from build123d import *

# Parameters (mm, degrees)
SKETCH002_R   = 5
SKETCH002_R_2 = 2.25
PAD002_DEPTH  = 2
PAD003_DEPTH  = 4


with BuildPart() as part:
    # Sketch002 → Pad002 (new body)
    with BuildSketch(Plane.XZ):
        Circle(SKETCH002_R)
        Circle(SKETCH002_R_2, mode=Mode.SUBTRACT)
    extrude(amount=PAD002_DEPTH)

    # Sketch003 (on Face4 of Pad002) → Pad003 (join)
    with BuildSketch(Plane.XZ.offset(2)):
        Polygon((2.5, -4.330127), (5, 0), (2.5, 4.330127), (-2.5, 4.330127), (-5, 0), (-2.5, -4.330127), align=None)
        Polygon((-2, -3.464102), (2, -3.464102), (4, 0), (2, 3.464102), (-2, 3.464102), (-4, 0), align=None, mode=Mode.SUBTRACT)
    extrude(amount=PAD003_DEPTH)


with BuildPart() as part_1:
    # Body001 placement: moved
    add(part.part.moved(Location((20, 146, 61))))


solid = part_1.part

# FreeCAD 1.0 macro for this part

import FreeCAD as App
import Part
import Sketcher
from FreeCAD import Vector
Q = App.Units.Quantity

doc = App.newDocument("Part")
body = doc.addObject("PartDesign::Body", "Body")

# Sketch on XZ plane
sketch1 = body.newObject("Sketcher::SketchObject", "Sketch")
sketch1.AttachmentSupport = (doc.getObject("XZ_Plane"), [""])
sketch1.MapMode = "FlatFace"
sketch1.addGeometry(Part.Circle(Vector(0, 0, 0), Vector(0, 0, 1), 5), False)
sketch1.addGeometry(Part.Circle(Vector(0, 0, 0), Vector(0, 0, 1), 2.2), False)
sketch1.addConstraint(Sketcher.Constraint("Coincident", 0, 3, -1, 1))
sketch1.addConstraint(Sketcher.Constraint("Coincident", 1, 3, -1, 1))
sketch1.addConstraint(Sketcher.Constraint("Diameter", 0, Q("10 mm")))
sketch1.addConstraint(Sketcher.Constraint("Diameter", 1, Q("4.5 mm")))
pad1 = body.newObject("PartDesign::Pad", "Pad")
pad1.Profile = sketch1
pad1.Length = 2

# Sketch on XZ plane
sketch2 = body.newObject("Sketcher::SketchObject", "Sketch001")
sketch2.AttachmentSupport = (doc.getObject("XZ_Plane"), [""])
sketch2.MapMode = "FlatFace"
sketch2.AttachmentOffset = App.Placement(Vector(0, 0, 2), App.Rotation())
sketch2.addGeometry(Part.LineSegment(Vector(2.5, -4.3, 0), Vector(5, 0, 0)), False)
sketch2.addGeometry(Part.LineSegment(Vector(5, 0, 0), Vector(2.5, 4.3, 0)), False)
sketch2.addGeometry(Part.LineSegment(Vector(2.5, 4.3, 0), Vector(-2.5, 4.3, 0)), False)
sketch2.addGeometry(Part.LineSegment(Vector(-2.5, 4.3, 0), Vector(-5, 0, 0)), False)
sketch2.addGeometry(Part.LineSegment(Vector(-5, 0, 0), Vector(-2.5, -4.3, 0)), False)
sketch2.addGeometry(Part.LineSegment(Vector(-2.5, -4.3, 0), Vector(2.5, -4.3, 0)), False)
sketch2.addGeometry(Part.LineSegment(Vector(2, -3.5, 0), Vector(-2, -3.5, 0)), False)
sketch2.addGeometry(Part.LineSegment(Vector(-2, -3.5, 0), Vector(-4, 0, 0)), False)
sketch2.addGeometry(Part.LineSegment(Vector(-4, 0, 0), Vector(-2, 3.5, 0)), False)
sketch2.addGeometry(Part.LineSegment(Vector(-2, 3.5, 0), Vector(2, 3.5, 0)), False)
sketch2.addGeometry(Part.LineSegment(Vector(2, 3.5, 0), Vector(4, 0, 0)), False)
sketch2.addGeometry(Part.LineSegment(Vector(4, 0, 0), Vector(2, -3.5, 0)), False)
sketch2.addConstraint(Sketcher.Constraint("Coincident", 0, 2, 1, 1))
sketch2.addConstraint(Sketcher.Constraint("Coincident", 1, 2, 2, 1))
sketch2.addConstraint(Sketcher.Constraint("Coincident", 2, 2, 3, 1))
sketch2.addConstraint(Sketcher.Constraint("Coincident", 3, 2, 4, 1))
sketch2.addConstraint(Sketcher.Constraint("Coincident", 4, 2, 5, 1))
sketch2.addConstraint(Sketcher.Constraint("Coincident", 5, 2, 0, 1))
sketch2.addConstraint(Sketcher.Constraint("Coincident", 6, 2, 7, 1))
sketch2.addConstraint(Sketcher.Constraint("Coincident", 7, 2, 8, 1))
sketch2.addConstraint(Sketcher.Constraint("Coincident", 8, 2, 9, 1))
sketch2.addConstraint(Sketcher.Constraint("Coincident", 9, 2, 10, 1))
sketch2.addConstraint(Sketcher.Constraint("Coincident", 10, 2, 11, 1))
sketch2.addConstraint(Sketcher.Constraint("Coincident", 11, 2, 6, 1))
sketch2.addConstraint(Sketcher.Constraint("Horizontal", 2))
sketch2.addConstraint(Sketcher.Constraint("Horizontal", 5))
sketch2.addConstraint(Sketcher.Constraint("Horizontal", 6))
sketch2.addConstraint(Sketcher.Constraint("Horizontal", 9))
sketch2.addConstraint(Sketcher.Constraint("Symmetric", 0, 2, 3, 2, -1, 1))
sketch2.addConstraint(Sketcher.Constraint("Symmetric", 1, 2, 4, 2, -1, 1))
sketch2.addConstraint(Sketcher.Constraint("Symmetric", 6, 2, 9, 2, -1, 1))
sketch2.addConstraint(Sketcher.Constraint("Symmetric", 7, 2, 10, 2, -1, 1))
sketch2.addConstraint(Sketcher.Constraint("PointOnObject", 0, 2, -1))
sketch2.addConstraint(Sketcher.Constraint("PointOnObject", 7, 2, -1))
sketch2.addConstraint(Sketcher.Constraint("Parallel", 0, 3))
sketch2.addConstraint(Sketcher.Constraint("Parallel", 4, 7))
sketch2.addConstraint(Sketcher.Constraint("Parallel", 3, 8))
sketch2.addConstraint(Sketcher.Constraint("Parallel", 8, 11))
sketch2.addConstraint(Sketcher.Constraint("Vertical", 2, 2, 4, 2))
sketch2.addConstraint(Sketcher.Constraint("DistanceX", 2, 2, 2, 1, Q("5 mm")))
sketch2.addConstraint(Sketcher.Constraint("DistanceX", 6, 2, 6, 1, Q("4 mm")))
sketch2.addConstraint(Sketcher.Constraint("Angle", 0, Q("60 deg")))
sketch2.addConstraint(Sketcher.Constraint("Distance", 0, Q("5 mm")))
sketch2.addConstraint(Sketcher.Constraint("Distance", 7, Q("4 mm")))
pad2 = body.newObject("PartDesign::Pad", "Pad001")
pad2.Profile = sketch2
pad2.Length = 4
body2 = doc.addObject("PartDesign::Body", "Body001")
doc.recompute()

body.Placement = App.Placement(Vector(20, 146, 61), App.Rotation(Vector(0, 0, 1), 0))
boolean = body2.newObject("PartDesign::Boolean", "Boolean")
boolean.Type = "Fuse"
boolean.addObjects([body])

doc.recompute()
